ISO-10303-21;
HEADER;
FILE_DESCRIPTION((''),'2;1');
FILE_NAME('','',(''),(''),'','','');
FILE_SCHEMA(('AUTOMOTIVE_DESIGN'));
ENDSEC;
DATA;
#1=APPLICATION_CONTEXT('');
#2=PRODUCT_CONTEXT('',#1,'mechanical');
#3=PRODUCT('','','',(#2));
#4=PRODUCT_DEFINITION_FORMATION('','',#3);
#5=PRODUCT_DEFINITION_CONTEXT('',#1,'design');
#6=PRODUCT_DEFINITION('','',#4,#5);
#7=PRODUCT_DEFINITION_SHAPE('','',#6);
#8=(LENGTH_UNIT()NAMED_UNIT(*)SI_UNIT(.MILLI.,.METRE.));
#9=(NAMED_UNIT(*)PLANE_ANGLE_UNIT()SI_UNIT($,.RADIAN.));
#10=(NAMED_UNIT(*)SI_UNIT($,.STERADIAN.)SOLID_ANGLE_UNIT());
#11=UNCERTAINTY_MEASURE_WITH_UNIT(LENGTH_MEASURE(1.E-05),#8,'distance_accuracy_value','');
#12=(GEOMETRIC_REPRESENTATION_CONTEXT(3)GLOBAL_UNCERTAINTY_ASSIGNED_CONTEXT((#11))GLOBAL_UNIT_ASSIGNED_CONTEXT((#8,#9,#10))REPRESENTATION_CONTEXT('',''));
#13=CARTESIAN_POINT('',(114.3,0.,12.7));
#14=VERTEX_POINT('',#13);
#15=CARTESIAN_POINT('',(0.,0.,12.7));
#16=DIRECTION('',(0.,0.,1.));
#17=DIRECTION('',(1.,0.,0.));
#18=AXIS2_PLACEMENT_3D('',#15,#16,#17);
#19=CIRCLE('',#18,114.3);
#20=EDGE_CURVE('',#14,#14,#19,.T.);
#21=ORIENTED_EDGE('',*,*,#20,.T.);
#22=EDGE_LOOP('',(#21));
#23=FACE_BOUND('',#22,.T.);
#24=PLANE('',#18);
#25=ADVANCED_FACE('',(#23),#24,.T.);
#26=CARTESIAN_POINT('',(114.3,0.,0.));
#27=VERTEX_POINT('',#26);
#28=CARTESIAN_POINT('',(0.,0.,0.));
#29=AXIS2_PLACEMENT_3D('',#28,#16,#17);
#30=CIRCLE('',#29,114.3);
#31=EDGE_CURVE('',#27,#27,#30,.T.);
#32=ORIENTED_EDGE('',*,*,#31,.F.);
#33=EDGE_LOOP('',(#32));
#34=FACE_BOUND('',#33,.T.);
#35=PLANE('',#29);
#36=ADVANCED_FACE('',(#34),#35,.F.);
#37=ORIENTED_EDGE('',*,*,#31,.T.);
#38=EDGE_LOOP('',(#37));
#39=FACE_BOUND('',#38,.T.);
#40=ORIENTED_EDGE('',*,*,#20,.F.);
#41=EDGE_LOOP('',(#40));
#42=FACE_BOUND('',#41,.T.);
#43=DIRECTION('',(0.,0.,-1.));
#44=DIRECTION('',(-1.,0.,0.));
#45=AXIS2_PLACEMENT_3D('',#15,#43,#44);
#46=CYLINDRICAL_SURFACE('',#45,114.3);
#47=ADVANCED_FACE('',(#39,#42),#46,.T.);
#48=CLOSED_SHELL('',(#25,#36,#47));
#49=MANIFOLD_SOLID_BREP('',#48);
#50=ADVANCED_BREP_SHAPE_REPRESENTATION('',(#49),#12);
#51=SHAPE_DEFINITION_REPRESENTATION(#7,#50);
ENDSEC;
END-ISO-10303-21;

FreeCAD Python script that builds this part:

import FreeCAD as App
import Part
import Sketcher

V = App.Vector
Q = App.Units.Quantity

doc = App.newDocument("Part")
body = doc.addObject("PartDesign::Body", "Body")

# Sketch on XY plane
sketch1 = body.newObject("Sketcher::SketchObject", "Sketch")
sketch1.AttachmentSupport = (doc.getObject("XY_Plane"), [""])
sketch1.MapMode = "FlatFace"
sketch1.addGeometry(Part.Circle(V(0, 0, 0), V(0, 0, 1), 114), False)
sketch1.addConstraint([
    Sketcher.Constraint("Coincident", 0, 3, -1, 1),
    Sketcher.Constraint("Diameter", 0, Q("9 in")),
])
pad1 = body.newObject("PartDesign::Pad", "Pad")
pad1.Profile = sketch1
pad1.Length = Q("0.5 in")

doc.recompute()
